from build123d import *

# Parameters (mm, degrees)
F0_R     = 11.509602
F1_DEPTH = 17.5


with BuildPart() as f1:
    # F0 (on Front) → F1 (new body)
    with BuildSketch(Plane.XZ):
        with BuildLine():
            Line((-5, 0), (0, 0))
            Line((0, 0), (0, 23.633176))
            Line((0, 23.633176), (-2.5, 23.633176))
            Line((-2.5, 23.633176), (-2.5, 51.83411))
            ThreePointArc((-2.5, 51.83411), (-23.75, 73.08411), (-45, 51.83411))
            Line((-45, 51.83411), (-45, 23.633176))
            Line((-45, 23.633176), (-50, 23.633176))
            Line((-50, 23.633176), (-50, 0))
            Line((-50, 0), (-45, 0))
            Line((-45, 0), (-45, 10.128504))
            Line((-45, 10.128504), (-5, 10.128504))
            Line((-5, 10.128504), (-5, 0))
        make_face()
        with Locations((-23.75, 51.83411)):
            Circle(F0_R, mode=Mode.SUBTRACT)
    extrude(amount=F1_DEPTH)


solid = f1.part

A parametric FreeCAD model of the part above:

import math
import FreeCAD as App
import Part
import Sketcher
from FreeCAD import Vector
Q = App.Units.Quantity

doc = App.newDocument("Part")
body = doc.addObject("PartDesign::Body", "Body")

# Sketch on XZ plane
sketch1 = body.newObject("Sketcher::SketchObject", "Sketch")
sketch1.AttachmentSupport = (doc.getObject("XZ_Plane"), [""])
sketch1.MapMode = "FlatFace"
sketch1.addGeometry(Part.LineSegment(Vector(-5, 0, 0), Vector(0, 0, 0)), False)
sketch1.addGeometry(Part.LineSegment(Vector(0, 0, 0), Vector(0, 23.6, 0)), False)
sketch1.addGeometry(Part.LineSegment(Vector(0, 23.6, 0), Vector(-2.5, 23.6, 0)), False)
sketch1.addGeometry(Part.LineSegment(Vector(-2.5, 23.6, 0), Vector(-2.5, 51.8, 0)), False)
sketch1.addGeometry(Part.ArcOfCircle(Part.Circle(Vector(-23.8, 51.8, 0), Vector(0, 0, 1), 21.2), math.radians(0), math.radians(180)), False)
sketch1.addGeometry(Part.LineSegment(Vector(-45, 51.8, 0), Vector(-45, 23.6, 0)), False)
sketch1.addGeometry(Part.LineSegment(Vector(-45, 23.6, 0), Vector(-50, 23.6, 0)), False)
sketch1.addGeometry(Part.LineSegment(Vector(-50, 23.6, 0), Vector(-50, 0, 0)), False)
sketch1.addGeometry(Part.LineSegment(Vector(-50, 0, 0), Vector(-45, 0, 0)), False)
sketch1.addGeometry(Part.LineSegment(Vector(-45, 0, 0), Vector(-45, 10.1, 0)), False)
sketch1.addGeometry(Part.LineSegment(Vector(-45, 10.1, 0), Vector(-5, 10.1, 0)), False)
sketch1.addGeometry(Part.LineSegment(Vector(-5, 10.1, 0), Vector(-5, 0, 0)), False)
sketch1.addGeometry(Part.Circle(Vector(-23.8, 51.8, 0), Vector(0, 0, 1), 11.5), False)
sketch1.addConstraint(Sketcher.Constraint("Coincident", 0, 2, 1, 1))
sketch1.addConstraint(Sketcher.Constraint("Coincident", 1, 2, 2, 1))
sketch1.addConstraint(Sketcher.Constraint("Coincident", 2, 2, 3, 1))
sketch1.addConstraint(Sketcher.Constraint("Tangent", 3, 2, 4, 1))
sketch1.addConstraint(Sketcher.Constraint("Tangent", 4, 2, 5, 1))
sketch1.addConstraint(Sketcher.Constraint("Coincident", 5, 2, 6, 1))
sketch1.addConstraint(Sketcher.Constraint("Coincident", 6, 2, 7, 1))
sketch1.addConstraint(Sketcher.Constraint("Coincident", 7, 2, 8, 1))
sketch1.addConstraint(Sketcher.Constraint("Coincident", 8, 2, 9, 1))
sketch1.addConstraint(Sketcher.Constraint("Coincident", 9, 2, 10, 1))
sketch1.addConstraint(Sketcher.Constraint("Coincident", 10, 2, 11, 1))
sketch1.addConstraint(Sketcher.Constraint("Coincident", 11, 2, 0, 1))
sketch1.addConstraint(Sketcher.Constraint("Horizontal", 0))
sketch1.addConstraint(Sketcher.Constraint("Vertical", 1))
sketch1.addConstraint(Sketcher.Constraint("Horizontal", 2))
sketch1.addConstraint(Sketcher.Constraint("Vertical", 3))
sketch1.addConstraint(Sketcher.Constraint("Vertical", 5))
sketch1.addConstraint(Sketcher.Constraint("Horizontal", 6))
sketch1.addConstraint(Sketcher.Constraint("Vertical", 7))
sketch1.addConstraint(Sketcher.Constraint("Horizontal", 8))
sketch1.addConstraint(Sketcher.Constraint("Vertical", 9))
sketch1.addConstraint(Sketcher.Constraint("Horizontal", 10))
sketch1.addConstraint(Sketcher.Constraint("Vertical", 11))
sketch1.addConstraint(Sketcher.Constraint("Coincident", 0, 2, -1, 1))
sketch1.addConstraint(Sketcher.Constraint("Coincident", 12, 3, 4, 3))
sketch1.addConstraint(Sketcher.Constraint("PointOnObject", 7, 2, -1))
sketch1.addConstraint(Sketcher.Constraint("Horizontal", 2, 2, 5, 2))
sketch1.addConstraint(Sketcher.Constraint("Vertical", 5, 2, 8, 2))
sketch1.addConstraint(Sketcher.Constraint("Equal", 0, 6))
sketch1.addConstraint(Sketcher.Constraint("DistanceX", 0, 1, 0, 2, Q("5 mm")))
sketch1.addConstraint(Sketcher.Constraint("DistanceX", 10, 1, 10, 2, Q("40 mm")))
sketch1.addConstraint(Sketcher.Constraint("Radius", 4, Q("21.25 mm")))
sketch1.addConstraint(Sketcher.Constraint("Diameter", 12, Q("23.019204 mm")))
sketch1.addConstraint(Sketcher.Constraint("DistanceY", 1, 1, 1, 2, Q("23.633176 mm")))
sketch1.addConstraint(Sketcher.Constraint("DistanceY", 3, 1, 3, 2, Q("28.200934 mm")))
sketch1.addConstraint(Sketcher.Constraint("DistanceY", 9, 1, 9, 2, Q("10.128504 mm")))
pad1 = body.newObject("PartDesign::Pad", "Pad")
pad1.Profile = sketch1
pad1.Length = 17.5

doc.recompute()
